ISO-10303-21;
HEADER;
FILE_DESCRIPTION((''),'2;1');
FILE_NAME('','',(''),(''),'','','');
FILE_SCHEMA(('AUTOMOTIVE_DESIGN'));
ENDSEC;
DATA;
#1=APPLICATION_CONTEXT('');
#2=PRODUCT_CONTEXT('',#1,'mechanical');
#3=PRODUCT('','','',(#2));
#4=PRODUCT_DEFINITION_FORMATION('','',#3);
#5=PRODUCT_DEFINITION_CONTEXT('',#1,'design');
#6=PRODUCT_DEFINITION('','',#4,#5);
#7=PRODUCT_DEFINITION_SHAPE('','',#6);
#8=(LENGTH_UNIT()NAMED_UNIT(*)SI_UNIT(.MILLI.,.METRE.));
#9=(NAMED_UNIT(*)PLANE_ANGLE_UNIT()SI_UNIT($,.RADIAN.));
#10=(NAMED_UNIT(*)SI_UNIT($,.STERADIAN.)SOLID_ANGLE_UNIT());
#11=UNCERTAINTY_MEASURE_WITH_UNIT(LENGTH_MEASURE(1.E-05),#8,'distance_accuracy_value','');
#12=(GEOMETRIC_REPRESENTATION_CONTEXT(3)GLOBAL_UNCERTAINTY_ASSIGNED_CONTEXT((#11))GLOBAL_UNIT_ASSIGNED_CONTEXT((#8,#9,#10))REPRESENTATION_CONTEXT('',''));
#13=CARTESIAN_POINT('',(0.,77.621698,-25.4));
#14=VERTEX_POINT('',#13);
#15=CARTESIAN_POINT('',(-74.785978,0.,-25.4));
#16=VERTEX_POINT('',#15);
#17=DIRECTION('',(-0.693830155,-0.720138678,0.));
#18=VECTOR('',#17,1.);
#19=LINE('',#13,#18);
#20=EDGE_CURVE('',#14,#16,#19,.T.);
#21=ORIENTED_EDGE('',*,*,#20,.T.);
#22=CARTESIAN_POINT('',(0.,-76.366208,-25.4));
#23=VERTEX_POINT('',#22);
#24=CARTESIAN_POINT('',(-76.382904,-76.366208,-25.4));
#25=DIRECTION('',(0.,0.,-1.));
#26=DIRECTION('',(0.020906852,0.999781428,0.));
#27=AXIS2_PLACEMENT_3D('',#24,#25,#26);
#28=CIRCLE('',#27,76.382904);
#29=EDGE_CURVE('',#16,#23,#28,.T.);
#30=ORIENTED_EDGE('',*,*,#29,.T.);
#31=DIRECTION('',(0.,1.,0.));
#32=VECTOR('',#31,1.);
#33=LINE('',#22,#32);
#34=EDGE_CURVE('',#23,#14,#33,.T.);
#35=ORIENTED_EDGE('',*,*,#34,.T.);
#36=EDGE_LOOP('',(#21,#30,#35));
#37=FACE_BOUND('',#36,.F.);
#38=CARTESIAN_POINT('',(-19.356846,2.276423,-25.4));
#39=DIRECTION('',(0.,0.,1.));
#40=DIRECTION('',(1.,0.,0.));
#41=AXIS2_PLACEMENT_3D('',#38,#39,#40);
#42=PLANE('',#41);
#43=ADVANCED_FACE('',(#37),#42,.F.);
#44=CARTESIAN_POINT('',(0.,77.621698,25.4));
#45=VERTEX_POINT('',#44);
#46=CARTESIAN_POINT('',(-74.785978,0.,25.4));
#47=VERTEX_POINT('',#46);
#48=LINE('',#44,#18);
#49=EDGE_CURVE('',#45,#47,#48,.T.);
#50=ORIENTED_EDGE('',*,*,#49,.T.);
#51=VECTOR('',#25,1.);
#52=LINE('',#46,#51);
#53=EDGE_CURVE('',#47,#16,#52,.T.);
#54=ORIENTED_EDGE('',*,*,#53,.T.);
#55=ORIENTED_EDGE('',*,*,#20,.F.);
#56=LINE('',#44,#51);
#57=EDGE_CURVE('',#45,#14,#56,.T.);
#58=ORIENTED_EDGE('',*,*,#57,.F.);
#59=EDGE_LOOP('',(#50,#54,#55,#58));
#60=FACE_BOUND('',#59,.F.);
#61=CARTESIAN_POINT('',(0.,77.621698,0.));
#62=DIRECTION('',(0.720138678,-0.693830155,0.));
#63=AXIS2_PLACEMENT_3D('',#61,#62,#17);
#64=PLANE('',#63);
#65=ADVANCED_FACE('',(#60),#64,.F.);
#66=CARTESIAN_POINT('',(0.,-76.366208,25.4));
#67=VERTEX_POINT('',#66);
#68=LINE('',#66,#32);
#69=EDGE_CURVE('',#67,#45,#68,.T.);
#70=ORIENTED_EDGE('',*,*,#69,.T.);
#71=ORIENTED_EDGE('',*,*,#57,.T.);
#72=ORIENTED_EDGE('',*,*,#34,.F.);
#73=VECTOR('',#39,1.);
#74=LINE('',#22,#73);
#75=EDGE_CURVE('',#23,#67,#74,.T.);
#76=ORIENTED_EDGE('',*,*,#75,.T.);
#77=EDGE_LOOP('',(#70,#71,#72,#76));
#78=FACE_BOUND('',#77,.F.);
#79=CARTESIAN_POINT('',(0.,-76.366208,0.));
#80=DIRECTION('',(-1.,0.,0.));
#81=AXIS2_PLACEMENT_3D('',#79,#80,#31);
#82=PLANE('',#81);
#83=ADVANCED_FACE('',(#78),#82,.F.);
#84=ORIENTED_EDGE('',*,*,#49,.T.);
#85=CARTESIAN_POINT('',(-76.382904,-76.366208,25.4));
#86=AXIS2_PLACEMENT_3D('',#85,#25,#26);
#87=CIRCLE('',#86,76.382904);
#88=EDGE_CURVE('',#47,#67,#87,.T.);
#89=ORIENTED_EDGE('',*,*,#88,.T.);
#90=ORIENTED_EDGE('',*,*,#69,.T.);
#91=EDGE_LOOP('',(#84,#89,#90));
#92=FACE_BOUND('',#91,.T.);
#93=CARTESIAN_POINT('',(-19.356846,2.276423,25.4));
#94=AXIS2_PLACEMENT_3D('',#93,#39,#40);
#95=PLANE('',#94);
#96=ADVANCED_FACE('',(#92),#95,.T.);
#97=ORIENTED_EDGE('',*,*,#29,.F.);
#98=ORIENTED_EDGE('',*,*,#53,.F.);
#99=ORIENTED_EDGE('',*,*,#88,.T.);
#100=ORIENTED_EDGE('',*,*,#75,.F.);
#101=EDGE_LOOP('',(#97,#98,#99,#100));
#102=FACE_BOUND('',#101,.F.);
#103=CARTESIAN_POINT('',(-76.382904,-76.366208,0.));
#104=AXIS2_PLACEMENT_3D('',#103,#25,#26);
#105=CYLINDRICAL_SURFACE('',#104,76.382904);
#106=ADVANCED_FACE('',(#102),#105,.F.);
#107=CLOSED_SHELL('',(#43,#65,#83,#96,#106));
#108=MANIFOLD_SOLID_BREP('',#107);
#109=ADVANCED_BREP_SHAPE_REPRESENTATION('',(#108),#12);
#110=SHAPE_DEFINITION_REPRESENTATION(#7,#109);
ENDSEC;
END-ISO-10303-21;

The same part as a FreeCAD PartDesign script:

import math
import FreeCAD as App
import Part
import Sketcher

V = App.Vector
Q = App.Units.Quantity

doc = App.newDocument("Part")
params = doc.addObject("Spreadsheet::Sheet", "Params")
for row, (alias, value) in enumerate([
    ("pad1_length", "1 in"),
    ("pad1_length2", "1 in"),
], start=1):
    params.set(f"A{row}", alias)
    params.set(f"B{row}", "=" + value)
    params.setAlias(f"B{row}", alias)

body = doc.addObject("PartDesign::Body", "Body")

# Sketch on XY plane
sketch1 = body.newObject("Sketcher::SketchObject", "Sketch")
sketch1.AttachmentSupport = (doc.getObject("XY_Plane"), [""])
sketch1.MapMode = "FlatFace"
sketch1.addGeometry([
    Part.ArcOfCircle(Part.Circle(V(-76, -76, 0), V(0, 0, 1), 76), math.radians(0), math.radians(89)),
    Part.LineSegment(V(0, -76, 0), V(0, 78, 0)),
    Part.LineSegment(V(0, 78, 0), V(-75, 0, 0)),
], False)
sketch1.addConstraint([
    Sketcher.Constraint("Tangent", 0, 1, 1, 1),
    Sketcher.Constraint("Coincident", 1, 2, 2, 1),
    Sketcher.Constraint("Coincident", 2, 2, 0, 2),
    Sketcher.Constraint("Vertical", 1),
    Sketcher.Constraint("PointOnObject", 0, 1, -2),
    Sketcher.Constraint("PointOnObject", 2, 2, -1),
    Sketcher.Constraint("Radius", 0, Q("76.382904 mm")),
    Sketcher.Constraint("DistanceY", -1, 1, 1, 2, Q("77.621698 mm")),
    Sketcher.Constraint("DistanceY", 1, 1, 1, 2, Q("153.987907 mm")),
])
pad1 = body.newObject("PartDesign::Pad", "Pad")
pad1.Profile = sketch1
pad1.Type = "TwoLengths"
pad1.setExpression("Length", "Params.pad1_length")
pad1.setExpression("Length2", "Params.pad1_length2")
pad1.Reversed = True

doc.recompute()
